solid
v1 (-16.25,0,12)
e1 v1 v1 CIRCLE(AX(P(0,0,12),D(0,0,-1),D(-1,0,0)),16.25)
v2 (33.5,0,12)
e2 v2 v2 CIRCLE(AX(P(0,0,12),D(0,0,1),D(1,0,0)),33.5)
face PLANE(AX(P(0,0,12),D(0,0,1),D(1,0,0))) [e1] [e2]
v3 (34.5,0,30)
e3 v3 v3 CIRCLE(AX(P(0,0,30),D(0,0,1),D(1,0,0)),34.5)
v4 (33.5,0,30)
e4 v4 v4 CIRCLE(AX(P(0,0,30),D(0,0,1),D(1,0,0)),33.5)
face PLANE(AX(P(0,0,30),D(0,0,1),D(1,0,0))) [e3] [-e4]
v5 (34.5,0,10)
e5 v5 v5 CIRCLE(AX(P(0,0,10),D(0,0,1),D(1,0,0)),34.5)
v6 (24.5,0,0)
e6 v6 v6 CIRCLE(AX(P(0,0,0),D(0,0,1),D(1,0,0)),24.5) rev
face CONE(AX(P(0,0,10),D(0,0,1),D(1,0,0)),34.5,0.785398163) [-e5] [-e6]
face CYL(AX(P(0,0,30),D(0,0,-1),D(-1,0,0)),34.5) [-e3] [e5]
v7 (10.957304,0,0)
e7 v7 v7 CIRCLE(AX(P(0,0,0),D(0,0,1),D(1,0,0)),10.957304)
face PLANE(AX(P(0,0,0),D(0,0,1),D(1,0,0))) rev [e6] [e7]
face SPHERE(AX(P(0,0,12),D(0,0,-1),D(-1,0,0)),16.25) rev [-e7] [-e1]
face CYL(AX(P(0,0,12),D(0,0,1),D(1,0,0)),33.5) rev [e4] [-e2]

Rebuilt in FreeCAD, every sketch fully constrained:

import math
import FreeCAD as App
import Part
import Sketcher

V = App.Vector
Q = App.Units.Quantity


def edges_at(feature, points):
    """Names of the edges that pass closest to the given points."""
    edges = feature.Shape.Edges
    near = lambda p: min(range(len(edges)), key=lambda i: edges[i].distToShape(Part.Vertex(*p))[0])
    return sorted({f"Edge{near(p) + 1}" for p in points})

doc = App.newDocument("Part")
params = doc.addObject("Spreadsheet::Sheet", "Params")
for row, (alias, value) in enumerate([
    ("sketch1_diameter", "69 mm"),
    ("pad1_length", "30 mm"),
    ("sketch2_diameter", "67 mm"),
    ("pocket1_length", "18 mm"),
    ("sketch3_radius", "16.25 mm"),
    ("groove_angle", "180 deg"),
    ("chamfer_size", "10 mm"),
], start=1):
    params.set(f"A{row}", alias)
    params.set(f"B{row}", "=" + value)
    params.setAlias(f"B{row}", alias)

body = doc.addObject("PartDesign::Body", "Body")

sketch1 = doc.addObject("Sketcher::SketchObject", "Sketch")
body.addObject(sketch1)
sketch1.AttachmentSupport = (doc.XY_Plane, [""])
sketch1.MapMode = "FlatFace"
sketch1.addGeometry(Part.Circle(V(0, 0, 0), V(0, 0, 1), 34), False)
sketch1.addConstraint(Sketcher.Constraint("Coincident", 0, 3, -1, 1))
sketch1.addConstraint(Sketcher.Constraint("Diameter", 0, Q("69 mm")))
sketch1.setExpression("Constraints[1]", "Params.sketch1_diameter")
pad1 = doc.addObject("PartDesign::Pad", "Pad")
body.addObject(pad1)
pad1.Profile = sketch1
pad1.setExpression("Length", "Params.pad1_length")

sketch2 = doc.addObject("Sketcher::SketchObject", "Sketch001")
body.addObject(sketch2)
sketch2.AttachmentSupport = (doc.XY_Plane, [""])
sketch2.MapMode = "FlatFace"
sketch2.AttachmentOffset = App.Placement(V(0, 0, 30), App.Rotation())
sketch2.addGeometry(Part.Circle(V(0, 0, 0), V(0, 0, 1), 34), False)
sketch2.addConstraint(Sketcher.Constraint("Coincident", 0, 3, -1, 1))
sketch2.addConstraint(Sketcher.Constraint("Diameter", 0, Q("67 mm")))
sketch2.setExpression("Constraints[1]", "Params.sketch2_diameter")
pocket1 = doc.addObject("PartDesign::Pocket", "Pocket")
body.addObject(pocket1)
pocket1.Profile = sketch2
pocket1.setExpression("Length", "Params.pocket1_length")

sketch3 = doc.addObject("Sketcher::SketchObject", "Sketch002")
body.addObject(sketch3)
sketch3.AttachmentSupport = (doc.XY_Plane, [""])
sketch3.MapMode = "FlatFace"
sketch3.AttachmentOffset = App.Placement(V(0, 0, 12), App.Rotation())
sketch3.addGeometry(Part.LineSegment(V(-16, 0, 0), V(16, 0, 0)), False)
sketch3.addGeometry(Part.ArcOfCircle(Part.Circle(V(0, 0, 0), V(0, 0, 1), 16), math.radians(0), math.radians(180)), False)
sketch3.addConstraint(Sketcher.Constraint("Coincident", 0, 1, 1, 2))
sketch3.addConstraint(Sketcher.Constraint("Coincident", 1, 1, 0, 2))
sketch3.addConstraint(Sketcher.Constraint("Horizontal", 0))
sketch3.addConstraint(Sketcher.Constraint("Coincident", 1, 3, -1, 1))
sketch3.addConstraint(Sketcher.Constraint("PointOnObject", 0, 1, -1))
sketch3.addConstraint(Sketcher.Constraint("Radius", 1, Q("16.25 mm")))
sketch3.setExpression("Constraints[5]", "Params.sketch3_radius")
groove = doc.addObject("PartDesign::Groove", "Groove")
body.addObject(groove)
groove.Profile = sketch3
groove.ReferenceAxis = (sketch3, ["H_Axis"])
groove.setExpression("Angle", "Params.groove_angle")
groove.Reversed = True
doc.recompute()

chamfer = doc.addObject("PartDesign::Chamfer", "Chamfer")
body.addObject(chamfer)
chamfer.Base = (groove, edges_at(groove, [(-34.5, 0, 0)]))
chamfer.setExpression("Size", "Params.chamfer_size")

doc.recompute()
